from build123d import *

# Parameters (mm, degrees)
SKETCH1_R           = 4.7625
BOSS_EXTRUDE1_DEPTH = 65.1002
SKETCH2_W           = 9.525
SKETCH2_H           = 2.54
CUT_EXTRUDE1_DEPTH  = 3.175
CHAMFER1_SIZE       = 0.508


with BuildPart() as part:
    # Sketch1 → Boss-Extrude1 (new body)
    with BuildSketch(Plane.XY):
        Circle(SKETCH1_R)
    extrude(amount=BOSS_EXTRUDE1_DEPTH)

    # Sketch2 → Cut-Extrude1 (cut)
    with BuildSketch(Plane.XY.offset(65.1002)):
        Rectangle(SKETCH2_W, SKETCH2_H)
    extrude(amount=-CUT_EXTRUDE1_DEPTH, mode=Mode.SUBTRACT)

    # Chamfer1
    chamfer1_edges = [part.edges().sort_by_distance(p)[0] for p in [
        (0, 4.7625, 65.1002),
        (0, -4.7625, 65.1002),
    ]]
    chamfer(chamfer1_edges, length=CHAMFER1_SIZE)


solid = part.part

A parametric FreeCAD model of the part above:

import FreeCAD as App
import Part
import Sketcher

V = App.Vector
Q = App.Units.Quantity


def edges_at(feature, points):
    """Names of the edges that pass closest to the given points."""
    edges = feature.Shape.Edges
    near = lambda p: min(range(len(edges)), key=lambda i: edges[i].distToShape(Part.Vertex(*p))[0])
    return sorted({f"Edge{near(p) + 1}" for p in points})

doc = App.newDocument("Part")
body = doc.addObject("PartDesign::Body", "Body")

# Sketch on XY plane
sketch1 = body.newObject("Sketcher::SketchObject", "Sketch")
sketch1.AttachmentSupport = (doc.getObject("XY_Plane"), [""])
sketch1.MapMode = "FlatFace"
sketch1.addGeometry(Part.Circle(V(0, 0, 0), V(0, 0, 1), 4.7625), False)
sketch1.addConstraint([
    Sketcher.Constraint("Coincident", 0, 3, -1, 1),
    Sketcher.Constraint("Diameter", 0, Q("0.375 in")),
])
pad1 = body.newObject("PartDesign::Pad", "Pad")
pad1.Profile = sketch1
pad1.Length = Q("2.563 in")

# Sketch on XY plane
sketch2 = body.newObject("Sketcher::SketchObject", "Sketch001")
sketch2.AttachmentSupport = (doc.getObject("XY_Plane"), [""])
sketch2.MapMode = "FlatFace"
sketch2.AttachmentOffset = App.Placement(V(0, 0, 2.563 * 25.4), App.Rotation())
sketch2.addGeometry([
    Part.LineSegment(V(-4.7625, 1.27, 0), V(-4.7625, -1.27, 0)),
    Part.LineSegment(V(-4.7625, -1.27, 0), V(4.7625, -1.27, 0)),
    Part.LineSegment(V(4.7625, -1.27, 0), V(4.7625, 1.27, 0)),
    Part.LineSegment(V(4.7625, 1.27, 0), V(-4.7625, 1.27, 0)),
], False)
sketch2.addConstraint([
    Sketcher.Constraint("Coincident", 0, 2, 1, 1),
    Sketcher.Constraint("Coincident", 1, 2, 2, 1),
    Sketcher.Constraint("Coincident", 2, 2, 3, 1),
    Sketcher.Constraint("Coincident", 3, 2, 0, 1),
    Sketcher.Constraint("Vertical", 0),
    Sketcher.Constraint("Horizontal", 1),
    Sketcher.Constraint("Vertical", 2),
    Sketcher.Constraint("Horizontal", 3),
    Sketcher.Constraint("Symmetric", 0, 2, 2, 2, -1, 1),
    Sketcher.Constraint("DistanceY", 0, 2, 0, 1, Q("0.1 in")),
    Sketcher.Constraint("DistanceX", 1, 1, 1, 2, Q("0.375 in")),
])
pocket1 = body.newObject("PartDesign::Pocket", "Pocket")
pocket1.Profile = sketch2
pocket1.Length = Q("0.125 in")
doc.recompute()

chamfer = body.newObject("PartDesign::Chamfer", "Chamfer")
chamfer.Base = (pocket1, edges_at(pocket1, [(0, 4.763, 65.1), (0, -4.763, 65.1)]))
chamfer.Size = Q("0.02 in")

doc.recompute()
